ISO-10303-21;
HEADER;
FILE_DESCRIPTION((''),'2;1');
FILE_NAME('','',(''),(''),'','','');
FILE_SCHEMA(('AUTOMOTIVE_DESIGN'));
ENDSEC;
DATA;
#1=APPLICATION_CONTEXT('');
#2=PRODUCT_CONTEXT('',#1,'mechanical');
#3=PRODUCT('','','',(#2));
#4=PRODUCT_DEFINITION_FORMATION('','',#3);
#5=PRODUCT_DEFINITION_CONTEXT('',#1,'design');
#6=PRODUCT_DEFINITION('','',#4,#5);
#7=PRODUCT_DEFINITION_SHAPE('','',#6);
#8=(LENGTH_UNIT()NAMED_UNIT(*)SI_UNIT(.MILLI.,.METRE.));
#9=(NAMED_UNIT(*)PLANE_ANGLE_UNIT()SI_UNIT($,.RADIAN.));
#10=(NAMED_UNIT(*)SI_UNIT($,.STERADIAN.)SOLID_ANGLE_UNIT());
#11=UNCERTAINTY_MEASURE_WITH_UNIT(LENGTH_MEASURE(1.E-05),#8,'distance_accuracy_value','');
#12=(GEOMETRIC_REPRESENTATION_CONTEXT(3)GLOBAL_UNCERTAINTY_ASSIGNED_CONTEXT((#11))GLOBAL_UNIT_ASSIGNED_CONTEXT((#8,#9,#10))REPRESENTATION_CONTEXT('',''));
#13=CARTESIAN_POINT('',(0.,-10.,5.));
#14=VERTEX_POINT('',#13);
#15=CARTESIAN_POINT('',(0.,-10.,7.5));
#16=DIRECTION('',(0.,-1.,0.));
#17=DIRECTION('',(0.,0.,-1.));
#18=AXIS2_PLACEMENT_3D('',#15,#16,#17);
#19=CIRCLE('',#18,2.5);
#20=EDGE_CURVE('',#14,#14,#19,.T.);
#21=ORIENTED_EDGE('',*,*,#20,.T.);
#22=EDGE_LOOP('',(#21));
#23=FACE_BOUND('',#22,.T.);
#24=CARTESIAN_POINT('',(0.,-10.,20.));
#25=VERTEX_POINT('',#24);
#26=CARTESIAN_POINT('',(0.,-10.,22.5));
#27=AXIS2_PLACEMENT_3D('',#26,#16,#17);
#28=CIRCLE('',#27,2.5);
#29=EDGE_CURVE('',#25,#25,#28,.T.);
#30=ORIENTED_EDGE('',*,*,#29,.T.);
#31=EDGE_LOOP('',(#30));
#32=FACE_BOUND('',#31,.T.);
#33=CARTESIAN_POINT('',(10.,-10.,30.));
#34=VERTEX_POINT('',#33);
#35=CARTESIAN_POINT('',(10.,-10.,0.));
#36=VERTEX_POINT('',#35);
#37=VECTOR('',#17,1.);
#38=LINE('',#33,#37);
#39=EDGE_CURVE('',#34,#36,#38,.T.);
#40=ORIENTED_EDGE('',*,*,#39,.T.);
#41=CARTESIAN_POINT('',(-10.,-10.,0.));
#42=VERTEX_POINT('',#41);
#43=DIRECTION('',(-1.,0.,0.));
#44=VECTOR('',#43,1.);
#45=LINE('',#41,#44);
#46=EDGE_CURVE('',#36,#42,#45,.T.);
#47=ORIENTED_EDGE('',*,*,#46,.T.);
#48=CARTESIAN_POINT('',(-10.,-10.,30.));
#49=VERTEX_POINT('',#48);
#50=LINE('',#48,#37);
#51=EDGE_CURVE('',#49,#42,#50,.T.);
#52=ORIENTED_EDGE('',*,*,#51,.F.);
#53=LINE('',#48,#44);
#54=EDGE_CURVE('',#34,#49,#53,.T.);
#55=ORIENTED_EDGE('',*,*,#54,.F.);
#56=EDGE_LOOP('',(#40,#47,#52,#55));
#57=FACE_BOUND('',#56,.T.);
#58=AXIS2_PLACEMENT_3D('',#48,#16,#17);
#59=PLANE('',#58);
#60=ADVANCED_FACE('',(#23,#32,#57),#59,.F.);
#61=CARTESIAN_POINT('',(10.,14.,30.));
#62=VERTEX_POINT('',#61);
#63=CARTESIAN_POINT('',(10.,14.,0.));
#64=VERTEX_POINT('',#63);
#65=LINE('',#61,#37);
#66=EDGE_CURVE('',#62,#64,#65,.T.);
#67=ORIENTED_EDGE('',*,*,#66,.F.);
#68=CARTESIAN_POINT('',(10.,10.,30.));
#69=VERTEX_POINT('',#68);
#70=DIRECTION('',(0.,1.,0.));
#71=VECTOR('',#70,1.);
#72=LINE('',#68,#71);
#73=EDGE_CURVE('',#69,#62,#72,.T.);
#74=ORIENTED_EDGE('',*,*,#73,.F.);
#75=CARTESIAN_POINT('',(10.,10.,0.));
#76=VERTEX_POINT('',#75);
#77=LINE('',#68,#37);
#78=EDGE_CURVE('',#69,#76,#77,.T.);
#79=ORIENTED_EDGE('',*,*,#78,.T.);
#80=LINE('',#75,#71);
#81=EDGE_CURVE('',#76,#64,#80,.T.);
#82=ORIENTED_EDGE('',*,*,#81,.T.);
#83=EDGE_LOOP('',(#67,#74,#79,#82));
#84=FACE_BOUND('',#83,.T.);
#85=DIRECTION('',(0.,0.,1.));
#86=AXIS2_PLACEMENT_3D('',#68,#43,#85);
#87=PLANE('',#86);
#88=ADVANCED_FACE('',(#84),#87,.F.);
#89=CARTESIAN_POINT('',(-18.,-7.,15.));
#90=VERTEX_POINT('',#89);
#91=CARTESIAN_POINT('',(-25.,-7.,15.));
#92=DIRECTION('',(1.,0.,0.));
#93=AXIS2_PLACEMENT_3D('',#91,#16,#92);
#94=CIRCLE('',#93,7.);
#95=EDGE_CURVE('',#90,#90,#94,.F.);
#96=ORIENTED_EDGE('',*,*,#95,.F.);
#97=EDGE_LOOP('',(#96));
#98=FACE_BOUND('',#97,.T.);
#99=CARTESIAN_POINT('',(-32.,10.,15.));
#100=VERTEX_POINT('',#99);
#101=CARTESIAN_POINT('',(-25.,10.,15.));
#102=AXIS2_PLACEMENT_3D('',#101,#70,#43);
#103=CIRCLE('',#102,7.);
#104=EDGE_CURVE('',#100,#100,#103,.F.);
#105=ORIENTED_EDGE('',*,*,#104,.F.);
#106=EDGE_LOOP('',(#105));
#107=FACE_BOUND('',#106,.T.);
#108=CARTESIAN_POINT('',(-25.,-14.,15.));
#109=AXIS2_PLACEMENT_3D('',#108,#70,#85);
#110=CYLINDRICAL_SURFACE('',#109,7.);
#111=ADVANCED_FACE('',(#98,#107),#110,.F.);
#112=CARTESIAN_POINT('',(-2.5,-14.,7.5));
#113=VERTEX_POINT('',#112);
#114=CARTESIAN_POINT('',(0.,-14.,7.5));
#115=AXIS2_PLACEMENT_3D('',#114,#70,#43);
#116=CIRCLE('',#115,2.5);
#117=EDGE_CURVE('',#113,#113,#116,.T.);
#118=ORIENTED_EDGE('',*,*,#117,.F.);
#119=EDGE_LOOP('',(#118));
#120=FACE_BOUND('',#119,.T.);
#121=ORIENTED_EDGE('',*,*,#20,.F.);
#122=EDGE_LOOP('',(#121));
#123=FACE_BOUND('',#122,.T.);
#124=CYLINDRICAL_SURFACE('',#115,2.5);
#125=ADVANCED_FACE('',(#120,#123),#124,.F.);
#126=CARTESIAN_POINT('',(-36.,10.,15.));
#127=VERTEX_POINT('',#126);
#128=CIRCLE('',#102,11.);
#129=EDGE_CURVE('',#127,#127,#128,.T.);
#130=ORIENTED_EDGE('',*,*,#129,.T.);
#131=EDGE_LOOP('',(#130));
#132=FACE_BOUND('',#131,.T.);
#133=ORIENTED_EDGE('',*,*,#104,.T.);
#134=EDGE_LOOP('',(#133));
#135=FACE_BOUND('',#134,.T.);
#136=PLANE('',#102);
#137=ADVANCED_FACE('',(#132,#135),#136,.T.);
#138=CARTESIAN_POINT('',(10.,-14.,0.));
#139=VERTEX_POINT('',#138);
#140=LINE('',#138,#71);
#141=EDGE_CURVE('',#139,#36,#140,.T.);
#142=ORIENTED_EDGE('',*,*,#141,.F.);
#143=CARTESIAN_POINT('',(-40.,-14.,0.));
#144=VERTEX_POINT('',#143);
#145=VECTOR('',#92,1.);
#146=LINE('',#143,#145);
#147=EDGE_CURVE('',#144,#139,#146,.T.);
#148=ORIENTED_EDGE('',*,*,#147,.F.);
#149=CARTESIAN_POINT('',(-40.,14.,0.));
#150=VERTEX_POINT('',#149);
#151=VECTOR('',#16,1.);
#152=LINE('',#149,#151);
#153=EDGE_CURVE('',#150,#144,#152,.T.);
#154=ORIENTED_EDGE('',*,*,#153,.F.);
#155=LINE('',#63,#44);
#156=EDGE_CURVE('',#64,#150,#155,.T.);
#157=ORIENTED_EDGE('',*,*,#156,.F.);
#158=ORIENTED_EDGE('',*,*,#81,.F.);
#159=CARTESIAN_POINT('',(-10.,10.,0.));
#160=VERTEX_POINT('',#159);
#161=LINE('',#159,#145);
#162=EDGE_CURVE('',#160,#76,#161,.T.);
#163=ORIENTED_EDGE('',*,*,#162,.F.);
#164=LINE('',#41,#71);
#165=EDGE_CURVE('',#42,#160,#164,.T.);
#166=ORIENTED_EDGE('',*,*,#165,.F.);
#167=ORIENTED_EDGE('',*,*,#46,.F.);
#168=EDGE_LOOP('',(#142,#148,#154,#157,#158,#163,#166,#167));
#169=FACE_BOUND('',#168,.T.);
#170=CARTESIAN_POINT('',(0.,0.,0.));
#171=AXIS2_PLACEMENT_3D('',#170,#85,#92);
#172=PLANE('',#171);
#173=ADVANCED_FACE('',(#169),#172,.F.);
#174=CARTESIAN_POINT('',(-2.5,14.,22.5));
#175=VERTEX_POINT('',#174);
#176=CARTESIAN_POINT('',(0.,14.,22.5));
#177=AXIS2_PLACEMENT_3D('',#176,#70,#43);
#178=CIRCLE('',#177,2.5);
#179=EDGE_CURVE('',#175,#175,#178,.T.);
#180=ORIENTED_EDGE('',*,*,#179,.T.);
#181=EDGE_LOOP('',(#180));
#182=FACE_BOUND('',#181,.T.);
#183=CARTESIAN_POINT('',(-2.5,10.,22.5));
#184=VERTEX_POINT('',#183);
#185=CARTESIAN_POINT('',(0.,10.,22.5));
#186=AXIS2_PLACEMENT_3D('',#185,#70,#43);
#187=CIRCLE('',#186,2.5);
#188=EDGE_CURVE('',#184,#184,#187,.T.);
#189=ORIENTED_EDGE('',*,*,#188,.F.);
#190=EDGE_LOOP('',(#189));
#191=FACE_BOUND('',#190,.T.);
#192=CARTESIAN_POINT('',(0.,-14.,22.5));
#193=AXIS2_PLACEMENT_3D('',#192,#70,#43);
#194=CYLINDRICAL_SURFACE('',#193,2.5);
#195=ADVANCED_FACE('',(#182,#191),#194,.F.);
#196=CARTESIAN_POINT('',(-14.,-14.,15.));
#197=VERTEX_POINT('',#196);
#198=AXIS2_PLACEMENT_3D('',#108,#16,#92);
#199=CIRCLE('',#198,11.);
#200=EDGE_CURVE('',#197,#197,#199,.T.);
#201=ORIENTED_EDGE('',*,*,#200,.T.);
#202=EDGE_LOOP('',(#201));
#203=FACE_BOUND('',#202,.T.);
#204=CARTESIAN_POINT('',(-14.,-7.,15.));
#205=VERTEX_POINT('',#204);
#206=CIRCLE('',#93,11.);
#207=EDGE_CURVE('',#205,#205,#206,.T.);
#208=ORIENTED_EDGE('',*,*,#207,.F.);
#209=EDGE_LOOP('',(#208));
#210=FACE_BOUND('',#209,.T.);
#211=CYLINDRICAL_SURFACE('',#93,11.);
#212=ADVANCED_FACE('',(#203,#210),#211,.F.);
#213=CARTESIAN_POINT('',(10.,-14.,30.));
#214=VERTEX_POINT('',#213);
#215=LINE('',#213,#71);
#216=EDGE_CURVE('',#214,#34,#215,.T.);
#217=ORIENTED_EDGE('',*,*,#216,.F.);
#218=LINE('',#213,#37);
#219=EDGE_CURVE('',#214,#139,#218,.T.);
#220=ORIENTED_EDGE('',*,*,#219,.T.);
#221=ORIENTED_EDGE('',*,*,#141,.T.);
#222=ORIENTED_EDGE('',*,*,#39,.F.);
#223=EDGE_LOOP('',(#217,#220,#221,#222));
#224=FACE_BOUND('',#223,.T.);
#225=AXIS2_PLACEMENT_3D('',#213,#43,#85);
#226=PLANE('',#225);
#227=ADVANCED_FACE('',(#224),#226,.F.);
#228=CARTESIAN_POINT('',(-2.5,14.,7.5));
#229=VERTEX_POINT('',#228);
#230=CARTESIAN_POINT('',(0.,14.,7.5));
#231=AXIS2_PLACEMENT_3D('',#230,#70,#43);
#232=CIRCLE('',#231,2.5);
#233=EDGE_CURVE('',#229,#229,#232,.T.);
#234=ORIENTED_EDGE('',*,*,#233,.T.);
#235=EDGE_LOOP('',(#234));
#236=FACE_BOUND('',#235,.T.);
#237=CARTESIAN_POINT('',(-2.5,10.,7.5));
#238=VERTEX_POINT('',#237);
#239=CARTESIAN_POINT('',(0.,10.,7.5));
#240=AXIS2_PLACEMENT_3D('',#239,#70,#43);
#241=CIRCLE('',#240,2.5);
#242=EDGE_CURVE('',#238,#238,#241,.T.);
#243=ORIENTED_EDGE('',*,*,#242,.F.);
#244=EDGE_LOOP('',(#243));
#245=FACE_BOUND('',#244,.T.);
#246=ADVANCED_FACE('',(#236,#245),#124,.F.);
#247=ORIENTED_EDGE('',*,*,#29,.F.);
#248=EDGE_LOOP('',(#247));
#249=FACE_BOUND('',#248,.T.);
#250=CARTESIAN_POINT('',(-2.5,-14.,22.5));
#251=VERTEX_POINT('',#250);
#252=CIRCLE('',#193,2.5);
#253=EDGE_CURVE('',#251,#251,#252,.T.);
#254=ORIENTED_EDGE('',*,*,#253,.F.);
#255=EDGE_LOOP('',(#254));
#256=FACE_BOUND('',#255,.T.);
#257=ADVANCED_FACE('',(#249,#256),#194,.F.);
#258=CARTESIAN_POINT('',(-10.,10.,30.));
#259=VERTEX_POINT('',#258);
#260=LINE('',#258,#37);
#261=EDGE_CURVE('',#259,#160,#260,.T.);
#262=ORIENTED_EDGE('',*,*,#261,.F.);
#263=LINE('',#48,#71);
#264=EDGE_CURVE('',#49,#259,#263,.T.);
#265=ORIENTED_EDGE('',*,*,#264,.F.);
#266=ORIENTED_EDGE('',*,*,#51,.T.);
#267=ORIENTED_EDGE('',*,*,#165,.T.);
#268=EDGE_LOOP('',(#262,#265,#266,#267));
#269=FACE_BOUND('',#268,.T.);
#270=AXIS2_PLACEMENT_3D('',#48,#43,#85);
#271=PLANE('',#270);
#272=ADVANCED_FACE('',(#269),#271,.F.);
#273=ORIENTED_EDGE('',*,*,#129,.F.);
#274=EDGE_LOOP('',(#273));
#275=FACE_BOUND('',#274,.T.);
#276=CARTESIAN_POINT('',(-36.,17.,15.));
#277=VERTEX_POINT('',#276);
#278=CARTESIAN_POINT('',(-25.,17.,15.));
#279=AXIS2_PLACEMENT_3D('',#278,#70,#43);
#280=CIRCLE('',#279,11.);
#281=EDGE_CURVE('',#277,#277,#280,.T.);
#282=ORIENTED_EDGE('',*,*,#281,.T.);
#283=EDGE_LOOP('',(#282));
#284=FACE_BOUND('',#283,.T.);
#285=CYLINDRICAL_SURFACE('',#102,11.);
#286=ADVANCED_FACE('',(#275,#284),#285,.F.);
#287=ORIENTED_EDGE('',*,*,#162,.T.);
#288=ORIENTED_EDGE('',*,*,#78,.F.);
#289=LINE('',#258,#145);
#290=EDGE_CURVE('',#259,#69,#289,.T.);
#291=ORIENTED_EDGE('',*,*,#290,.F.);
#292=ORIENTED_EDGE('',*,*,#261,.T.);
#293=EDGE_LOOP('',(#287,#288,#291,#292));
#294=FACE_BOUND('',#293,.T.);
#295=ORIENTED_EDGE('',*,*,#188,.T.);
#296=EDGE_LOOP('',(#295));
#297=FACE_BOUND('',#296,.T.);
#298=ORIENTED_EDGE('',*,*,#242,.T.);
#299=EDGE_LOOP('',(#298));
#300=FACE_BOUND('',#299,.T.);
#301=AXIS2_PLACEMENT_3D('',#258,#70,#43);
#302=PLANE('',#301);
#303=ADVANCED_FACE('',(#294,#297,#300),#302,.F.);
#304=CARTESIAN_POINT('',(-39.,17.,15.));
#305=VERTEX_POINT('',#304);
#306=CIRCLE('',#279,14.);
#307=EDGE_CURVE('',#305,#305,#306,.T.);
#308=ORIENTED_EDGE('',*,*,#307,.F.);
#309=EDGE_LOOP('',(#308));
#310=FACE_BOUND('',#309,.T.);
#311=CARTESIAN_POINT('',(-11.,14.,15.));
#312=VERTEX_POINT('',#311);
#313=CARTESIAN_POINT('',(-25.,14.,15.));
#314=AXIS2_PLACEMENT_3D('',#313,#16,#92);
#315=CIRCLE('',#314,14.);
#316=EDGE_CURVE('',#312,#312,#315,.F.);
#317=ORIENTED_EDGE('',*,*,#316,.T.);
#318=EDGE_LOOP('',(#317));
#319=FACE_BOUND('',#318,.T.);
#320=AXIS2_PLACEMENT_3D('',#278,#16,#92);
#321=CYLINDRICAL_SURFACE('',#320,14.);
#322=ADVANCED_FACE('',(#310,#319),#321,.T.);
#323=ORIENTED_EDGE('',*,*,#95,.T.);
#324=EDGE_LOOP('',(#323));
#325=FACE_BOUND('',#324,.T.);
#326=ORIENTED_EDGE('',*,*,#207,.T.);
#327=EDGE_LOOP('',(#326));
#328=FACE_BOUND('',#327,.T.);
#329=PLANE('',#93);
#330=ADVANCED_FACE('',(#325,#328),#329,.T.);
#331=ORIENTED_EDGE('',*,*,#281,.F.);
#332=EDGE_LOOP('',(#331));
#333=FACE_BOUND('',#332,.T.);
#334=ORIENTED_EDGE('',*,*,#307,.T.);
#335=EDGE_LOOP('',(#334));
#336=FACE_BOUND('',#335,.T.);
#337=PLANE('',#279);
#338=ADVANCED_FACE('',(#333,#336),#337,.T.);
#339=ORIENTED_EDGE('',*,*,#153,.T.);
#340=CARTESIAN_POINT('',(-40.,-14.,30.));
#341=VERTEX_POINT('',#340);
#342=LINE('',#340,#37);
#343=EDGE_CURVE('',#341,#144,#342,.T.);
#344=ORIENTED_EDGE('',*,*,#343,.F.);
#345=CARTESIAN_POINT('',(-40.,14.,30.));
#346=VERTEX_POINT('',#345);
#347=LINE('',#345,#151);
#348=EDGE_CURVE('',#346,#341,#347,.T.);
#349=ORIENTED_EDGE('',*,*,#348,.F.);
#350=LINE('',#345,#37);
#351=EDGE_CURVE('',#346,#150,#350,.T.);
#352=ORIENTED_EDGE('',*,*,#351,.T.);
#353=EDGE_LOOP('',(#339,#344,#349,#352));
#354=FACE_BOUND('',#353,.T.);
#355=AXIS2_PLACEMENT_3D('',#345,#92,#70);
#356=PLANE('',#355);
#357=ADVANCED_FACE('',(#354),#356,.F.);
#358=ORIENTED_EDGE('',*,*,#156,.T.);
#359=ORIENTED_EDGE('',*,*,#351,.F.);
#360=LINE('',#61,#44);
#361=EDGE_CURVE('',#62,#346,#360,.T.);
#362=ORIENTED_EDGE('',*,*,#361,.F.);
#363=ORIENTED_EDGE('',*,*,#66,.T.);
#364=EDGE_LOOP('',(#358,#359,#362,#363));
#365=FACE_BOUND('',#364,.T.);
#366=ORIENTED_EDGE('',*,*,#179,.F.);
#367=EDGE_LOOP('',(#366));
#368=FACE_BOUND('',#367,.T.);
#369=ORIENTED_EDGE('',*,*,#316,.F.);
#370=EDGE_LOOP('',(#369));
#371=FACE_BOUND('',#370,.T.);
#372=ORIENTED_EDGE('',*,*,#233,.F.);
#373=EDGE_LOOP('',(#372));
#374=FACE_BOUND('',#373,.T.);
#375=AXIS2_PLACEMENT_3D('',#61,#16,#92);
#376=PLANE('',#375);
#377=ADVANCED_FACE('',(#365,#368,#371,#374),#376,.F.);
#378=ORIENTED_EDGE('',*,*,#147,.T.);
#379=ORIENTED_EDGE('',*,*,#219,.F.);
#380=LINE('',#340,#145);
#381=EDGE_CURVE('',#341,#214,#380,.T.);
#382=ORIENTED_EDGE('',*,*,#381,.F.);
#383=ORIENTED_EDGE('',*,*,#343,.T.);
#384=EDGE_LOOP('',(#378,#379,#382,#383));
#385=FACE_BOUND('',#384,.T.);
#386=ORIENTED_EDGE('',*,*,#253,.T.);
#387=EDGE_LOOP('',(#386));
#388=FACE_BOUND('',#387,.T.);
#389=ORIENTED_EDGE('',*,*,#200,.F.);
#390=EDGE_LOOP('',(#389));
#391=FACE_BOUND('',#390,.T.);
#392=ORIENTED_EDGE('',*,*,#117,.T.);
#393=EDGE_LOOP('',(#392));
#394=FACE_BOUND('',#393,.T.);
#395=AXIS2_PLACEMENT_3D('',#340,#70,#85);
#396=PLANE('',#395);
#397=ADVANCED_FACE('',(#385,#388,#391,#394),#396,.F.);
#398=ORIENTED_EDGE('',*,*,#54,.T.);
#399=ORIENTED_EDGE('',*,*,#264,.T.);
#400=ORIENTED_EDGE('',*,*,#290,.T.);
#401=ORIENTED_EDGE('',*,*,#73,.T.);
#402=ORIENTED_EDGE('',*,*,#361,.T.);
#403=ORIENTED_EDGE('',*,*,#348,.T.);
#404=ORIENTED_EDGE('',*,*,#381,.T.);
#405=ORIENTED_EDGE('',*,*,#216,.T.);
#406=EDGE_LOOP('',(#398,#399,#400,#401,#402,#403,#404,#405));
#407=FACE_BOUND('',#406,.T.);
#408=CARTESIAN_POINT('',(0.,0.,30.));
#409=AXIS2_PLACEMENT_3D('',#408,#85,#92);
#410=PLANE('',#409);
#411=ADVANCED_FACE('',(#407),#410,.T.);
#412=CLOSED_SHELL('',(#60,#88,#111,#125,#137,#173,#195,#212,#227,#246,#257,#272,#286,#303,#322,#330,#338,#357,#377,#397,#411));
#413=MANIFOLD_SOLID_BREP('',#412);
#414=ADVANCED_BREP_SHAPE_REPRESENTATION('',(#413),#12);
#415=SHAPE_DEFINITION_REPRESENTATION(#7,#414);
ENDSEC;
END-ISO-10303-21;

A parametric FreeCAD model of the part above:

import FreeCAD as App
import Part
import Sketcher

V = App.Vector

doc = App.newDocument("Part")
params = doc.addObject("Spreadsheet::Sheet", "Params")
for row, (alias, value) in enumerate([
    ("sketch1_width", "50 mm"),
    ("sketch1_width2", "20 mm"),
    ("sketch1_height", "4 mm"),
    ("pad1_length", "30 mm"),
    ("sketch2_diameter", "14 mm"),
    ("sketch3_diameter", "22 mm"),
    ("pocket2_length", "4 mm"),
    ("sketch4_diameter", "22 mm"),
    ("pocket3_length", "7 mm"),
    ("sketch5_diameter", "5 mm"),
    ("sketch6_diameter", "28 mm"),
    ("sketch6_diameter2", "22 mm"),
    ("pad2_length", "3 mm"),
], start=1):
    params.set(f"A{row}", alias)
    params.set(f"B{row}", "=" + value)
    params.setAlias(f"B{row}", alias)

body = doc.addObject("PartDesign::Body", "Body")

# Sketch on XY plane
sketch1 = body.newObject("Sketcher::SketchObject", "Sketch")
sketch1.AttachmentSupport = (doc.getObject("XY_Plane"), [""])
sketch1.MapMode = "FlatFace"
sketch1.addGeometry(Part.LineSegment(V(10, 10, 0), V(10, 14, 0)), False)
sketch1.addGeometry(Part.LineSegment(V(10, 14, 0), V(-40, 14, 0)), False)
sketch1.addGeometry(Part.LineSegment(V(-40, 14, 0), V(-40, -14, 0)), False)
sketch1.addGeometry(Part.LineSegment(V(-40, -14, 0), V(10, -14, 0)), False)
sketch1.addGeometry(Part.LineSegment(V(10, -14, 0), V(10, -10, 0)), False)
sketch1.addGeometry(Part.LineSegment(V(10, -10, 0), V(-10, -10, 0)), False)
sketch1.addGeometry(Part.LineSegment(V(-10, -10, 0), V(-10, 10, 0)), False)
sketch1.addGeometry(Part.LineSegment(V(-10, 10, 0), V(10, 10, 0)), False)
sketch1.addConstraint(Sketcher.Constraint("Coincident", 0, 2, 1, 1))
sketch1.addConstraint(Sketcher.Constraint("Coincident", 1, 2, 2, 1))
sketch1.addConstraint(Sketcher.Constraint("Coincident", 2, 2, 3, 1))
sketch1.addConstraint(Sketcher.Constraint("Coincident", 3, 2, 4, 1))
sketch1.addConstraint(Sketcher.Constraint("Coincident", 4, 2, 5, 1))
sketch1.addConstraint(Sketcher.Constraint("Coincident", 5, 2, 6, 1))
sketch1.addConstraint(Sketcher.Constraint("Coincident", 6, 2, 7, 1))
sketch1.addConstraint(Sketcher.Constraint("Coincident", 7, 2, 0, 1))
sketch1.addConstraint(Sketcher.Constraint("Vertical", 0))
sketch1.addConstraint(Sketcher.Constraint("Horizontal", 1))
sketch1.addConstraint(Sketcher.Constraint("Vertical", 2))
sketch1.addConstraint(Sketcher.Constraint("Horizontal", 3))
sketch1.addConstraint(Sketcher.Constraint("Vertical", 4))
sketch1.addConstraint(Sketcher.Constraint("Horizontal", 5))
sketch1.addConstraint(Sketcher.Constraint("Vertical", 6))
sketch1.addConstraint(Sketcher.Constraint("Horizontal", 7))
sketch1.addConstraint(Sketcher.Constraint("Symmetric", 4, 2, 6, 2, -1, 1))
sketch1.addConstraint(Sketcher.Constraint("Symmetric", 0, 2, 3, 2, -1))
sketch1.addConstraint(Sketcher.Constraint("Equal", 7, 6))
sketch1.addConstraint(Sketcher.Constraint("DistanceX", 1, 2, 1, 1, 50.0))
sketch1.addConstraint(Sketcher.Constraint("DistanceX", 5, 2, 5, 1, 20.0))
sketch1.addConstraint(Sketcher.Constraint("DistanceY", 0, 1, 0, 2, 4.0))
sketch1.setExpression("Constraints[19]", "Params.sketch1_width")
sketch1.setExpression("Constraints[20]", "Params.sketch1_width2")
sketch1.setExpression("Constraints[21]", "Params.sketch1_height")
pad1 = body.newObject("PartDesign::Pad", "Pad")
pad1.Profile = sketch1
pad1.setExpression("Length", "Params.pad1_length")

# Sketch on XZ plane
sketch2 = body.newObject("Sketcher::SketchObject", "Sketch001")
sketch2.AttachmentSupport = (doc.getObject("XZ_Plane"), [""])
sketch2.MapMode = "FlatFace"
sketch2.AttachmentOffset = App.Placement(V(0, 0, -14), App.Rotation())
sketch2.addGeometry(Part.Circle(V(-25, 15, 0), V(0, 0, 1), 7), False)
sketch2.addConstraint(Sketcher.Constraint("Diameter", 0, 14.0))
sketch2.addConstraint(Sketcher.Constraint("DistanceX", 0, 3, -1, 1, 25.0))
sketch2.addConstraint(Sketcher.Constraint("DistanceY", -1, 1, 0, 3, 15.0))
sketch2.setExpression("Constraints[0]", "Params.sketch2_diameter")
pocket1 = body.newObject("PartDesign::Pocket", "Pocket")
pocket1.Profile = sketch2
pocket1.Type = "ThroughAll"
pocket1.Reversed = True

# Sketch on XZ plane
sketch3 = body.newObject("Sketcher::SketchObject", "Sketch002")
sketch3.AttachmentSupport = (doc.getObject("XZ_Plane"), [""])
sketch3.MapMode = "FlatFace"
sketch3.AttachmentOffset = App.Placement(V(0, 0, -14), App.Rotation())
sketch3.addGeometry(Part.Circle(V(-25, 15, 0), V(0, 0, 1), 11), False)
sketch3.addConstraint(Sketcher.Constraint("Diameter", 0, 22.0))
sketch3.addConstraint(Sketcher.Constraint("DistanceX", 0, 3, -1, 1, 25.0))
sketch3.addConstraint(Sketcher.Constraint("DistanceY", -1, 1, 0, 3, 15.0))
sketch3.setExpression("Constraints[0]", "Params.sketch3_diameter")
pocket2 = body.newObject("PartDesign::Pocket", "Pocket001")
pocket2.Profile = sketch3
pocket2.setExpression("Length", "Params.pocket2_length")
pocket2.Reversed = True

# Sketch on XZ plane
sketch4 = body.newObject("Sketcher::SketchObject", "Sketch003")
sketch4.AttachmentSupport = (doc.getObject("XZ_Plane"), [""])
sketch4.MapMode = "FlatFace"
sketch4.AttachmentOffset = App.Placement(V(0, 0, 14), App.Rotation())
sketch4.addGeometry(Part.Circle(V(-25, 15, 0), V(0, 0, 1), 11), False)
sketch4.addConstraint(Sketcher.Constraint("Diameter", 0, 22.0))
sketch4.addConstraint(Sketcher.Constraint("DistanceX", 0, 3, -1, 1, 25.0))
sketch4.addConstraint(Sketcher.Constraint("DistanceY", -1, 1, 0, 3, 15.0))
sketch4.setExpression("Constraints[0]", "Params.sketch4_diameter")
pocket3 = body.newObject("PartDesign::Pocket", "Pocket002")
pocket3.Profile = sketch4
pocket3.setExpression("Length", "Params.pocket3_length")

# Sketch on XZ plane
sketch5 = body.newObject("Sketcher::SketchObject", "Sketch004")
sketch5.AttachmentSupport = (doc.getObject("XZ_Plane"), [""])
sketch5.MapMode = "FlatFace"
sketch5.AttachmentOffset = App.Placement(V(0, 0, -14), App.Rotation())
sketch5.addGeometry(Part.Circle(V(0, 22.5, 0), V(0, 0, 1), 2.5), False)
sketch5.addGeometry(Part.Circle(V(0, 7.5, 0), V(0, 0, 1), 2.5), False)
sketch5.addConstraint(Sketcher.Constraint("Equal", 0, 1))
sketch5.addConstraint(Sketcher.Constraint("PointOnObject", 0, 3, -2))
sketch5.addConstraint(Sketcher.Constraint("PointOnObject", 1, 3, -2))
sketch5.addConstraint(Sketcher.Constraint("Diameter", 0, 5.0))
sketch5.addConstraint(Sketcher.Constraint("DistanceY", 1, 3, 0, 3, 15.0))
sketch5.addConstraint(Sketcher.Constraint("DistanceY", -1, 1, 0, 3, 22.5))
sketch5.setExpression("Constraints[3]", "Params.sketch5_diameter")
pocket4 = body.newObject("PartDesign::Pocket", "Pocket003")
pocket4.Profile = sketch5
pocket4.Type = "ThroughAll"
pocket4.Reversed = True

# Sketch on XZ plane
sketch6 = body.newObject("Sketcher::SketchObject", "Sketch005")
sketch6.AttachmentSupport = (doc.getObject("XZ_Plane"), [""])
sketch6.MapMode = "FlatFace"
sketch6.AttachmentOffset = App.Placement(V(0, 0, -14), App.Rotation())
sketch6.addGeometry(Part.Circle(V(-25, 15, 0), V(0, 0, 1), 14), False)
sketch6.addGeometry(Part.Circle(V(-25, 15, 0), V(0, 0, 1), 11), False)
sketch6.addConstraint(Sketcher.Constraint("Coincident", 1, 3, 0, 3))
sketch6.addConstraint(Sketcher.Constraint("Diameter", 0, 28.0))
sketch6.addConstraint(Sketcher.Constraint("Diameter", 1, 22.0))
sketch6.addConstraint(Sketcher.Constraint("DistanceX", 0, 3, -1, 1, 25.0))
sketch6.addConstraint(Sketcher.Constraint("DistanceY", -1, 1, 0, 3, 15.0))
sketch6.setExpression("Constraints[1]", "Params.sketch6_diameter")
sketch6.setExpression("Constraints[2]", "Params.sketch6_diameter2")
pad2 = body.newObject("PartDesign::Pad", "Pad001")
pad2.Profile = sketch6
pad2.setExpression("Length", "Params.pad2_length")
pad2.Reversed = True

doc.recompute()
